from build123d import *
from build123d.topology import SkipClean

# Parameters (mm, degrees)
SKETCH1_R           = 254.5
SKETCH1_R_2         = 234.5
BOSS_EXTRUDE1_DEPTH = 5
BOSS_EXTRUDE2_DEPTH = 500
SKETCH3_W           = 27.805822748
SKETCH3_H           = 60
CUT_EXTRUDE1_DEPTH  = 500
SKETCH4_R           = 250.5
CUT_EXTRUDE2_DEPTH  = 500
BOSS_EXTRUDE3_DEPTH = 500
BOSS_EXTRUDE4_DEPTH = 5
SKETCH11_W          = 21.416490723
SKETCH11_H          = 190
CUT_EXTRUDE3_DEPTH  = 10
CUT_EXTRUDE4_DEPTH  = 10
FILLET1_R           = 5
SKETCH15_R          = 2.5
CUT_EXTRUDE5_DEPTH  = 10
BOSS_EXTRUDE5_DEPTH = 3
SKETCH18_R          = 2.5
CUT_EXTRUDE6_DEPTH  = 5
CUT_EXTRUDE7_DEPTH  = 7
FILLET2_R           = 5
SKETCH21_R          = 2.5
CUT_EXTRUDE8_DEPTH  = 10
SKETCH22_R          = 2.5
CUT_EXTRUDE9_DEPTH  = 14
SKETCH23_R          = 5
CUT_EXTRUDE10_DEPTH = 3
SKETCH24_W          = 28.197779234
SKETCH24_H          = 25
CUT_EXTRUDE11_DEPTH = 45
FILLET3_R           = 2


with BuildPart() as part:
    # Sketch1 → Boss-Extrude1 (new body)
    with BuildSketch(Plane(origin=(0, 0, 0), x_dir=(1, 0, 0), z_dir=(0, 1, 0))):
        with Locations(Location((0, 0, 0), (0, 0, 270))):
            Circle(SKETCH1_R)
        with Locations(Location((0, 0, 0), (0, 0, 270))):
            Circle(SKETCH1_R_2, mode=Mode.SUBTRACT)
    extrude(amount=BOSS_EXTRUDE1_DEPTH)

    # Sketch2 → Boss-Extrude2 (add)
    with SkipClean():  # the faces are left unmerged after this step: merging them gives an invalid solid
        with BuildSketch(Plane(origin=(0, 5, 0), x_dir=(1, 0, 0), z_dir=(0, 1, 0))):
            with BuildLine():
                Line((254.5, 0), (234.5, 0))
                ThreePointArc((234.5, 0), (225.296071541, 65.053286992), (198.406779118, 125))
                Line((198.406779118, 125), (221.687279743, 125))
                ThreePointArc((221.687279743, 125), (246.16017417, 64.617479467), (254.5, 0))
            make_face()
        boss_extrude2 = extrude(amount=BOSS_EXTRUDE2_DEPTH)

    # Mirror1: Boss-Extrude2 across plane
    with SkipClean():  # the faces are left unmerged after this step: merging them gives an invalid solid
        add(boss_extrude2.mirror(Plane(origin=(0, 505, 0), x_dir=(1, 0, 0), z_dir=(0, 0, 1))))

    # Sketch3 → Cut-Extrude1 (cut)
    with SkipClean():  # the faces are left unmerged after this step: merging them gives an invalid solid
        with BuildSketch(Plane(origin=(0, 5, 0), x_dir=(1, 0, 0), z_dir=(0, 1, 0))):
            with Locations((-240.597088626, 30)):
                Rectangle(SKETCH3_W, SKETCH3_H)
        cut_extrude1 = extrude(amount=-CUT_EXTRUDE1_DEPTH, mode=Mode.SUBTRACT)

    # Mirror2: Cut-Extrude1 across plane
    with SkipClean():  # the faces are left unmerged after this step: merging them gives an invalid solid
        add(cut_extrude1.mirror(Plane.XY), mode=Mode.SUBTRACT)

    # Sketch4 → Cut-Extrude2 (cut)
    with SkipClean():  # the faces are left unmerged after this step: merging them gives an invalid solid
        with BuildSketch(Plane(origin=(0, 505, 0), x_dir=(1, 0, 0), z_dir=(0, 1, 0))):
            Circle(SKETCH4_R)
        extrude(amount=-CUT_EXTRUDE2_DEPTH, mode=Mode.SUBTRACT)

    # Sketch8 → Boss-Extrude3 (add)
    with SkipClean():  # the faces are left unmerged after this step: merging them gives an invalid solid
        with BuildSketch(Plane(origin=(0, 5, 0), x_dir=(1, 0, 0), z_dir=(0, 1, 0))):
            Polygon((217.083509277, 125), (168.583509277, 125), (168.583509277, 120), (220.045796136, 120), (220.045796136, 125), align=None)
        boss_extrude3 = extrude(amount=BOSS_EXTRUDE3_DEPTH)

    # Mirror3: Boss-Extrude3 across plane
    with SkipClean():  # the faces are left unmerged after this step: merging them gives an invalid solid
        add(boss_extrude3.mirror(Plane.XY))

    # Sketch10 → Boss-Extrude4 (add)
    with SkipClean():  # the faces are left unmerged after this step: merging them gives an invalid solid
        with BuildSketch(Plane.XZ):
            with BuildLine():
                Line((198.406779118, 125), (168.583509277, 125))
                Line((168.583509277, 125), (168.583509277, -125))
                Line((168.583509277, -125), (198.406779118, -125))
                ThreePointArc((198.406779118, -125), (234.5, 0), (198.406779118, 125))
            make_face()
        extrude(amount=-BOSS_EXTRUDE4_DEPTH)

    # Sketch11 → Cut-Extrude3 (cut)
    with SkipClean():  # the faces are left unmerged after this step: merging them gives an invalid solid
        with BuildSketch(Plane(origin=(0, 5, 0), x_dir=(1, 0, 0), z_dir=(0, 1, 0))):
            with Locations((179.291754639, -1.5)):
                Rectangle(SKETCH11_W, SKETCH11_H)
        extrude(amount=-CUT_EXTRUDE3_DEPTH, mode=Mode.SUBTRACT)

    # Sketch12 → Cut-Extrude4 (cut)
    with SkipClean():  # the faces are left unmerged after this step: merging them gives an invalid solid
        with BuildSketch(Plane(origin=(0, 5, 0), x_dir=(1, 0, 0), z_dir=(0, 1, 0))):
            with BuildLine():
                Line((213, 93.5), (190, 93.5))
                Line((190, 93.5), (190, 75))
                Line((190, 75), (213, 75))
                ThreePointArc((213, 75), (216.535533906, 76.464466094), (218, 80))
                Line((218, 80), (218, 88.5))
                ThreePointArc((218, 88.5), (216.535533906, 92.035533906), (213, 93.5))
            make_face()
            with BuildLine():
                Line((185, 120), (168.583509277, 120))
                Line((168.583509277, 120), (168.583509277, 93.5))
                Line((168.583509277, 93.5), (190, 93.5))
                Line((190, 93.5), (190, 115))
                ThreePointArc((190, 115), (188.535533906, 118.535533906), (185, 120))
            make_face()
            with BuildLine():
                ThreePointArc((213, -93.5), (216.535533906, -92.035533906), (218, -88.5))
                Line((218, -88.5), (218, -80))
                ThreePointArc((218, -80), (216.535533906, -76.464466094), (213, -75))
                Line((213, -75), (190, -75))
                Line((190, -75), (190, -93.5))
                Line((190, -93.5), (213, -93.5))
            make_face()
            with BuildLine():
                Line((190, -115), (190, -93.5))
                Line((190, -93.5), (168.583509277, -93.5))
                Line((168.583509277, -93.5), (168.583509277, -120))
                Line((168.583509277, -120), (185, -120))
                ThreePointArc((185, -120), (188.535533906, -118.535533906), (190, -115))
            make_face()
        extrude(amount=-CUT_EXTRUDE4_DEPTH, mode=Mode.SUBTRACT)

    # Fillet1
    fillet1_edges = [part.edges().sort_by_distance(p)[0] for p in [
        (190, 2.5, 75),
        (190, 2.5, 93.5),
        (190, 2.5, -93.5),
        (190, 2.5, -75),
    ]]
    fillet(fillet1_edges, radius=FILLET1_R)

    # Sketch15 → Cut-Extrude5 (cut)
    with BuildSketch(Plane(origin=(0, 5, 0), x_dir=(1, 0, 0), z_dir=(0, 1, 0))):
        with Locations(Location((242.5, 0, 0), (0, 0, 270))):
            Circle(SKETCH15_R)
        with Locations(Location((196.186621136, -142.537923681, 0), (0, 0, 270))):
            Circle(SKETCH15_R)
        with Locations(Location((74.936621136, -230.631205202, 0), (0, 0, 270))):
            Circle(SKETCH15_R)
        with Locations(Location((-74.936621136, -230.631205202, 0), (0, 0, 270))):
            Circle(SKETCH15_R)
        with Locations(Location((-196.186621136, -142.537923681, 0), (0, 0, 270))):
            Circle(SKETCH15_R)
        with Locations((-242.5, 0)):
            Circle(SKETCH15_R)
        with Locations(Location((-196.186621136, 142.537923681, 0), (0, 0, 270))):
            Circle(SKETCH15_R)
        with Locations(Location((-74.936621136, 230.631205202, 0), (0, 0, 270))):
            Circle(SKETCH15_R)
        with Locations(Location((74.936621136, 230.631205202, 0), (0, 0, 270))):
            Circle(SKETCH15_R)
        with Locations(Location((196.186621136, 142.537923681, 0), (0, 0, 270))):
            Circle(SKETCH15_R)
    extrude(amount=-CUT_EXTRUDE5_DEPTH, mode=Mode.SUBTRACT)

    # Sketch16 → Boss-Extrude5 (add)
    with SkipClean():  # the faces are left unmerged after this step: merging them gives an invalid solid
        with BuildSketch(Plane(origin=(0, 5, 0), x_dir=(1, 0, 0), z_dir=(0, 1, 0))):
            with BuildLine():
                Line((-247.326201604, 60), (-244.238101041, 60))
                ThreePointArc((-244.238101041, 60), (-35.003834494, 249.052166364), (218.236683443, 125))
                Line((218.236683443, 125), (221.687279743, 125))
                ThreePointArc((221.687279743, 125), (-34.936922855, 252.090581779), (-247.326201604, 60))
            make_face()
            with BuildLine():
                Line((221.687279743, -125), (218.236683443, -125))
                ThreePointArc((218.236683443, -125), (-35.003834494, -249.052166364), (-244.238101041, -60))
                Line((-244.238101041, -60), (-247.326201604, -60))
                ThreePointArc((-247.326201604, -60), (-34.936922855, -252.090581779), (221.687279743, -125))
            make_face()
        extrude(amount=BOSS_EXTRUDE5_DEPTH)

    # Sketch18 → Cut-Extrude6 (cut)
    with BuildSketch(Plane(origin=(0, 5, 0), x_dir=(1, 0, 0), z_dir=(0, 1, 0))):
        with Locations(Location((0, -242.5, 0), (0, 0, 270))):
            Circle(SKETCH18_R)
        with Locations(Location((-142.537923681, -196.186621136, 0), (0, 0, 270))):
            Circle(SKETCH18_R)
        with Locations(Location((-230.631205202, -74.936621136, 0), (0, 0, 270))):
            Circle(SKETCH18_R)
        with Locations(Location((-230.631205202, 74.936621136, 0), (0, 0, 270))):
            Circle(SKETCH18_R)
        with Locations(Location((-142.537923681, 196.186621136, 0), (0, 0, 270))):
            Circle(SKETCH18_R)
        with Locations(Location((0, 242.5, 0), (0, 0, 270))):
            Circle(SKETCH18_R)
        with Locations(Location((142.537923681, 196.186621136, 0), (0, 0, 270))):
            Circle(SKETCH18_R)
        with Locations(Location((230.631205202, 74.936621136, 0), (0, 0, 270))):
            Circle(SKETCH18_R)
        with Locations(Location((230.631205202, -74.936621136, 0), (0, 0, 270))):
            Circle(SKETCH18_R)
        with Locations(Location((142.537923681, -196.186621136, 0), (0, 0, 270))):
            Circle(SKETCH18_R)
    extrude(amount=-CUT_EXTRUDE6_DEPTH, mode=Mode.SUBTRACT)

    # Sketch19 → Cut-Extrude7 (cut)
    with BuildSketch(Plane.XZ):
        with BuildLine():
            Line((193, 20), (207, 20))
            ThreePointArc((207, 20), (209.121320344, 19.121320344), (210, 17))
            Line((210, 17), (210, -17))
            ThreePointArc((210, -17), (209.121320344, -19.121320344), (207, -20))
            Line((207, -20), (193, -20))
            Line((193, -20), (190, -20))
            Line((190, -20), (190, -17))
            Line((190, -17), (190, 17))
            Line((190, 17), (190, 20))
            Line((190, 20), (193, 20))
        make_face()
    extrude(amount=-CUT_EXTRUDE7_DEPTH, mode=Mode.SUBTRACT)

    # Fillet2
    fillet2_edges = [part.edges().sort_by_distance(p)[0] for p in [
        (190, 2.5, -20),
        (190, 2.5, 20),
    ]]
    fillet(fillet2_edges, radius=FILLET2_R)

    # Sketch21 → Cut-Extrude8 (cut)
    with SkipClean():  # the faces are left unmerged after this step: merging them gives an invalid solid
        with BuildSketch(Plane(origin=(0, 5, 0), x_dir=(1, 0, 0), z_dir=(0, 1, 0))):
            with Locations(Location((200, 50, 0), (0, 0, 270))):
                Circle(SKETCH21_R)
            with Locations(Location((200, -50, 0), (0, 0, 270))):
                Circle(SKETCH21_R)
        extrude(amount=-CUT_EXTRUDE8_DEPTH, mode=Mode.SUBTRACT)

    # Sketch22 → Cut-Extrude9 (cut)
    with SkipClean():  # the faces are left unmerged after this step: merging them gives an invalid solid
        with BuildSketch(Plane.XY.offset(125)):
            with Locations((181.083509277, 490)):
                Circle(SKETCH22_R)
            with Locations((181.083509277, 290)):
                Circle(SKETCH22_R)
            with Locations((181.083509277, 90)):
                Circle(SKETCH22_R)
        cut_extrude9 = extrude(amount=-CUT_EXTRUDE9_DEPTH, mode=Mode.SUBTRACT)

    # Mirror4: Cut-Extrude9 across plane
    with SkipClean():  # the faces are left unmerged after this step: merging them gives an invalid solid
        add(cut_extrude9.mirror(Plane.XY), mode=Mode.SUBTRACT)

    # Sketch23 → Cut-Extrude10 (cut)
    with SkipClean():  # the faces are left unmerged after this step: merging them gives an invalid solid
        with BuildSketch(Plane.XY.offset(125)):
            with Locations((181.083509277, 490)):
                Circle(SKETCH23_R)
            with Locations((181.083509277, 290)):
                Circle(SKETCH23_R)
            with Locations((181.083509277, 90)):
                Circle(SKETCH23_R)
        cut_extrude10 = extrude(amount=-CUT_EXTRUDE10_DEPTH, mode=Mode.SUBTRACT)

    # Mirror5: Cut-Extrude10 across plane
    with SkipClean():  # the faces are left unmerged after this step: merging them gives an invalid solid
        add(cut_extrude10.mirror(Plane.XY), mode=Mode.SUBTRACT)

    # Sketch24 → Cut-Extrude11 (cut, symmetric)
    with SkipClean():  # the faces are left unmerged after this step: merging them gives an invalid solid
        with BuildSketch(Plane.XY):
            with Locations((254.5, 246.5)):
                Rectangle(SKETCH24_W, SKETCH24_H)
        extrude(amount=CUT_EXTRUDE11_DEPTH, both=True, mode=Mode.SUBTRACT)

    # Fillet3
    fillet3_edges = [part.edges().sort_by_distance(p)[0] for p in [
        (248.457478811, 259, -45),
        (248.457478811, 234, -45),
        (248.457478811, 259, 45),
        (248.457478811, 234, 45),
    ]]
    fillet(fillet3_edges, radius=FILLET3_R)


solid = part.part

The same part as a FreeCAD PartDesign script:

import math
import FreeCAD as App
import Part
import Sketcher
from FreeCAD import Vector
Q = App.Units.Quantity


def edges_at(feature, points):
    """Names of the edges that pass closest to the given points."""
    edges = feature.Shape.Edges
    near = lambda p: min(range(len(edges)), key=lambda i: edges[i].distToShape(Part.Vertex(*p))[0])
    return sorted({f"Edge{near(p) + 1}" for p in points})


def add_polygon(sketch, points):
    """Adds a closed chain of lines whose ends are joined by coincident constraints."""
    first, n = sketch.GeometryCount, len(points)
    for a, b in zip(points, points[1:] + points[:1]):
        sketch.addGeometry(Part.LineSegment(App.Vector(*a, 0), App.Vector(*b, 0)), False)
    for i in range(n):
        sketch.addConstraint(Sketcher.Constraint("Coincident", first + i, 2, first + (i + 1) % n, 1))

doc = App.newDocument("Part")
body = doc.addObject("PartDesign::Body", "Body")

sketch1 = body.newObject("Sketcher::SketchObject", "Sketch")
sketch1.AttachmentSupport = (doc.getObject("XZ_Plane"), [""])
sketch1.MapMode = "FlatFace"
sketch1.addGeometry([
    Part.Circle(Vector(0, 0, 0), Vector(0, 0, 1), 254),
    Part.Circle(Vector(0, 0, 0), Vector(0, 0, 1), 234),
], False)
sketch1.addConstraint([
    Sketcher.Constraint("Coincident", 0, 3, -1, 1),
    Sketcher.Constraint("Coincident", 1, 3, -1, 1),
    Sketcher.Constraint("Diameter", 0, Q("509 mm")),
    Sketcher.Constraint("Diameter", 1, Q("469 mm")),
])
pad1 = body.newObject("PartDesign::Pad", "Pad")
pad1.Profile = sketch1
pad1.Length = 5
pad1.Reversed = True

sketch2 = body.newObject("Sketcher::SketchObject", "Sketch001")
sketch2.AttachmentSupport = (doc.getObject("XZ_Plane"), [""])
sketch2.MapMode = "FlatFace"
sketch2.AttachmentOffset = App.Placement(Vector(0, 0, -5), App.Rotation())
sketch2.addGeometry([
    Part.LineSegment(Vector(234, 0, 0), Vector(254, 0, 0)),
    Part.ArcOfCircle(Part.Circle(Vector(0, 0, 0), Vector(0, 0, 1), 254), math.radians(-29), math.radians(0)),
    Part.LineSegment(Vector(222, -125, 0), Vector(198, -125, 0)),
    Part.ArcOfCircle(Part.Circle(Vector(0, 0, 0), Vector(0, 0, 1), 234), math.radians(-32), math.radians(0)),
], False)
sketch2.addConstraint([
    Sketcher.Constraint("Coincident", 0, 2, 1, 2),
    Sketcher.Constraint("Coincident", 1, 1, 2, 1),
    Sketcher.Constraint("Coincident", 2, 2, 3, 1),
    Sketcher.Constraint("Coincident", 3, 2, 0, 1),
    Sketcher.Constraint("Horizontal", 0),
    Sketcher.Constraint("Horizontal", 2),
    Sketcher.Constraint("Coincident", 1, 3, -1, 1),
    Sketcher.Constraint("Coincident", 3, 3, -1, 1),
    Sketcher.Constraint("PointOnObject", 0, 2, -1),
    Sketcher.Constraint("Radius", 1, Q("254.5 mm")),
    Sketcher.Constraint("Radius", 3, Q("234.5 mm")),
    Sketcher.Constraint("DistanceY", 1, 1, -1, 1, Q("125 mm")),
])
pad2 = body.newObject("PartDesign::Pad", "Pad001")
pad2.Profile = sketch2
pad2.Length = 500
pad2.Reversed = True
doc.recompute()

mirrored = body.newObject("PartDesign::Mirrored", "Mirrored")
mirrored.Originals = [pad2]
mirrored.MirrorPlane = (doc.getObject("XY_Plane"), [""])
body.Tip = mirrored

sketch3 = body.newObject("Sketcher::SketchObject", "Sketch002")
sketch3.AttachmentSupport = (doc.getObject("XZ_Plane"), [""])
sketch3.MapMode = "FlatFace"
sketch3.AttachmentOffset = App.Placement(Vector(0, 0, -5), App.Rotation())
add_polygon(sketch3, [(-254, -60), (-254, 0), (-227, 0), (-227, -60)])
sketch3.addConstraint([
    Sketcher.Constraint("Vertical", 0),
    Sketcher.Constraint("Horizontal", 1),
    Sketcher.Constraint("Vertical", 2),
    Sketcher.Constraint("Horizontal", 3),
    Sketcher.Constraint("PointOnObject", 0, 2, -1),
    Sketcher.Constraint("DistanceY", 0, 1, 0, 2, Q("60 mm")),
    Sketcher.Constraint("DistanceX", 0, 2, -1, 1, Q("254.5 mm")),
    Sketcher.Constraint("DistanceX", 1, 1, 1, 2, Q("27.805823 mm")),
])
pocket1 = body.newObject("PartDesign::Pocket", "Pocket")
pocket1.Profile = sketch3
pocket1.Length = 500
pocket1.Reversed = True
doc.recompute()

mirrored2 = body.newObject("PartDesign::Mirrored", "Mirrored001")
mirrored2.Originals = [pocket1]
mirrored2.MirrorPlane = (doc.getObject("XY_Plane"), [""])
body.Tip = mirrored2

sketch4 = body.newObject("Sketcher::SketchObject", "Sketch003")
sketch4.AttachmentSupport = (doc.getObject("XZ_Plane"), [""])
sketch4.MapMode = "FlatFace"
sketch4.AttachmentOffset = App.Placement(Vector(0, 0, -505), App.Rotation())
sketch4.addGeometry(Part.Circle(Vector(0, 0, 0), Vector(0, 0, 1), 250), False)
sketch4.addConstraint([
    Sketcher.Constraint("Coincident", 0, 3, -1, 1),
    Sketcher.Constraint("Diameter", 0, Q("501 mm")),
])
pocket2 = body.newObject("PartDesign::Pocket", "Pocket001")
pocket2.Profile = sketch4
pocket2.Length = 500
pocket2.Reversed = True

sketch5 = body.newObject("Sketcher::SketchObject", "Sketch004")
sketch5.AttachmentSupport = (doc.getObject("XZ_Plane"), [""])
sketch5.MapMode = "FlatFace"
sketch5.AttachmentOffset = App.Placement(Vector(0, 0, -5), App.Rotation())
add_polygon(sketch5, [(169, -125), (169, -120), (220, -120), (220, -125)])
sketch5.addConstraint([
    Sketcher.Constraint("Vertical", 0),
    Sketcher.Constraint("Horizontal", 1),
    Sketcher.Constraint("Vertical", 2),
    Sketcher.Constraint("Horizontal", 3),
    Sketcher.Constraint("DistanceY", 0, 1, 0, 2, Q("5 mm")),
    Sketcher.Constraint("DistanceY", 0, 2, -1, 1, Q("120 mm")),
    Sketcher.Constraint("DistanceX", 1, 1, 1, 2, Q("51.462287 mm")),
    Sketcher.Constraint("DistanceX", -1, 1, 0, 2, Q("168.583509 mm")),
])
pad3 = body.newObject("PartDesign::Pad", "Pad002")
pad3.Profile = sketch5
pad3.Length = 500
pad3.Reversed = True
doc.recompute()

mirrored3 = body.newObject("PartDesign::Mirrored", "Mirrored002")
mirrored3.Originals = [pad3]
mirrored3.MirrorPlane = (doc.getObject("XY_Plane"), [""])
body.Tip = mirrored3

sketch6 = body.newObject("Sketcher::SketchObject", "Sketch005")
sketch6.AttachmentSupport = (doc.getObject("XZ_Plane"), [""])
sketch6.MapMode = "FlatFace"
sketch6.addGeometry([
    Part.LineSegment(Vector(198, 125, 0), Vector(169, 125, 0)),
    Part.LineSegment(Vector(169, 125, 0), Vector(169, -125, 0)),
    Part.LineSegment(Vector(169, -125, 0), Vector(198, -125, 0)),
    Part.ArcOfCircle(Part.Circle(Vector(0, 0, 0), Vector(0, 0, 1), 234), math.radians(-32), math.radians(32)),
], False)
sketch6.addConstraint([
    Sketcher.Constraint("Coincident", 0, 2, 1, 1),
    Sketcher.Constraint("Coincident", 1, 2, 2, 1),
    Sketcher.Constraint("Coincident", 2, 2, 3, 1),
    Sketcher.Constraint("Coincident", 3, 2, 0, 1),
    Sketcher.Constraint("Horizontal", 0),
    Sketcher.Constraint("Vertical", 1),
    Sketcher.Constraint("Horizontal", 2),
    Sketcher.Constraint("Coincident", 3, 3, -1, 1),
    Sketcher.Constraint("Vertical", 2, 2, 3, 2),
    Sketcher.Constraint("Radius", 3, Q("234.5 mm")),
    Sketcher.Constraint("DistanceY", 1, 2, 1, 1, Q("250 mm")),
    Sketcher.Constraint("DistanceX", 0, 2, 0, 1, Q("29.82327 mm")),
])
pad4 = body.newObject("PartDesign::Pad", "Pad003")
pad4.Profile = sketch6
pad4.Length = 5
pad4.Reversed = True

sketch7 = body.newObject("Sketcher::SketchObject", "Sketch006")
sketch7.AttachmentSupport = (doc.getObject("XZ_Plane"), [""])
sketch7.MapMode = "FlatFace"
sketch7.AttachmentOffset = App.Placement(Vector(0, 0, -5), App.Rotation())
add_polygon(sketch7, [(169, -94), (169, 96), (190, 96), (190, -94)])
sketch7.addConstraint([
    Sketcher.Constraint("Vertical", 0),
    Sketcher.Constraint("Horizontal", 1),
    Sketcher.Constraint("Vertical", 2),
    Sketcher.Constraint("Horizontal", 3),
    Sketcher.Constraint("DistanceY", 0, 1, 0, 2, Q("190 mm")),
    Sketcher.Constraint("DistanceX", -1, 1, 1, 2, Q("190 mm")),
    Sketcher.Constraint("DistanceY", -1, 1, 0, 2, Q("96.5 mm")),
    Sketcher.Constraint("DistanceX", 1, 1, 1, 2, Q("21.416491 mm")),
])
pocket3 = body.newObject("PartDesign::Pocket", "Pocket002")
pocket3.Profile = sketch7
pocket3.Length = 10
pocket3.Reversed = True

sketch8 = body.newObject("Sketcher::SketchObject", "Sketch007")
sketch8.AttachmentSupport = (doc.getObject("XZ_Plane"), [""])
sketch8.MapMode = "FlatFace"
sketch8.AttachmentOffset = App.Placement(Vector(0, 0, -5), App.Rotation())
sketch8.addGeometry([
    Part.LineSegment(Vector(213, -94, 0), Vector(190, -94, 0)),
    Part.LineSegment(Vector(190, -94, 0), Vector(190, -75, 0)),
    Part.LineSegment(Vector(190, -75, 0), Vector(213, -75, 0)),
    Part.ArcOfCircle(Part.Circle(Vector(213, -80, 0), Vector(0, 0, 1), 5), math.radians(0), math.radians(90)),
    Part.LineSegment(Vector(218, -80, 0), Vector(218, -88, 0)),
    Part.ArcOfCircle(Part.Circle(Vector(213, -88, 0), Vector(0, 0, 1), 5), math.radians(-90), math.radians(0)),
    Part.LineSegment(Vector(185, -120, 0), Vector(169, -120, 0)),
    Part.LineSegment(Vector(169, -120, 0), Vector(169, -94, 0)),
    Part.LineSegment(Vector(169, -94, 0), Vector(190, -94, 0)),
    Part.LineSegment(Vector(190, -94, 0), Vector(190, -115, 0)),
    Part.ArcOfCircle(Part.Circle(Vector(185, -115, 0), Vector(0, 0, 1), 5), math.radians(-90), math.radians(0)),
    Part.ArcOfCircle(Part.Circle(Vector(213, 88, 0), Vector(0, 0, 1), 5), math.radians(0), math.radians(90)),
    Part.LineSegment(Vector(218, 88, 0), Vector(218, 80, 0)),
    Part.ArcOfCircle(Part.Circle(Vector(213, 80, 0), Vector(0, 0, 1), 5), math.radians(-90), math.radians(0)),
    Part.LineSegment(Vector(213, 75, 0), Vector(190, 75, 0)),
    Part.LineSegment(Vector(190, 75, 0), Vector(190, 94, 0)),
    Part.LineSegment(Vector(190, 94, 0), Vector(213, 94, 0)),
    Part.LineSegment(Vector(190, 115, 0), Vector(190, 94, 0)),
    Part.LineSegment(Vector(190, 94, 0), Vector(169, 94, 0)),
    Part.LineSegment(Vector(169, 94, 0), Vector(169, 120, 0)),
    Part.LineSegment(Vector(169, 120, 0), Vector(185, 120, 0)),
    Part.ArcOfCircle(Part.Circle(Vector(185, 115, 0), Vector(0, 0, 1), 5), math.radians(0), math.radians(90)),
], False)
sketch8.addConstraint([
    Sketcher.Constraint("Coincident", 0, 2, 1, 1),
    Sketcher.Constraint("Coincident", 1, 2, 2, 1),
    Sketcher.Constraint("Tangent", 2, 2, 3, 2),
    Sketcher.Constraint("Tangent", 3, 1, 4, 1),
    Sketcher.Constraint("Tangent", 4, 2, 5, 2),
    Sketcher.Constraint("Tangent", 5, 1, 0, 1),
    Sketcher.Constraint("Coincident", 6, 2, 7, 1),
    Sketcher.Constraint("Coincident", 7, 2, 8, 1),
    Sketcher.Constraint("Coincident", 8, 2, 9, 1),
    Sketcher.Constraint("Tangent", 9, 2, 10, 2),
    Sketcher.Constraint("Tangent", 10, 1, 6, 1),
    Sketcher.Constraint("Tangent", 11, 1, 12, 1),
    Sketcher.Constraint("Tangent", 12, 2, 13, 2),
    Sketcher.Constraint("Tangent", 13, 1, 14, 1),
    Sketcher.Constraint("Coincident", 14, 2, 15, 1),
    Sketcher.Constraint("Coincident", 15, 2, 16, 1),
    Sketcher.Constraint("Tangent", 16, 2, 11, 2),
    Sketcher.Constraint("Coincident", 17, 2, 18, 1),
    Sketcher.Constraint("Coincident", 18, 2, 19, 1),
    Sketcher.Constraint("Coincident", 19, 2, 20, 1),
    Sketcher.Constraint("Tangent", 20, 2, 21, 2),
    Sketcher.Constraint("Tangent", 21, 1, 17, 1),
    Sketcher.Constraint("Horizontal", 0),
    Sketcher.Constraint("Vertical", 1),
    Sketcher.Constraint("Horizontal", 2),
    Sketcher.Constraint("Vertical", 4),
    Sketcher.Constraint("Horizontal", 6),
    Sketcher.Constraint("Vertical", 7),
    Sketcher.Constraint("Horizontal", 8),
    Sketcher.Constraint("Vertical", 9),
    Sketcher.Constraint("Vertical", 12),
    Sketcher.Constraint("Horizontal", 14),
    Sketcher.Constraint("Vertical", 15),
    Sketcher.Constraint("Horizontal", 16),
    Sketcher.Constraint("Vertical", 17),
    Sketcher.Constraint("Horizontal", 18),
    Sketcher.Constraint("Vertical", 19),
    Sketcher.Constraint("Horizontal", 20),
    Sketcher.Constraint("Coincident", 8, 2, 0, 2),
    Sketcher.Constraint("Coincident", 17, 2, 15, 2),
    Sketcher.Constraint("Equal", 3, 5),
    Sketcher.Constraint("Equal", 5, 10),
    Sketcher.Constraint("Equal", 10, 11),
    Sketcher.Constraint("Equal", 11, 13),
    Sketcher.Constraint("Equal", 13, 21),
    Sketcher.Constraint("Symmetric", 5, 3, 11, 3, -1),
    Sketcher.Constraint("Symmetric", 10, 3, 21, 3, -1),
    Sketcher.Constraint("Vertical", 7, 2, 18, 2),
    Sketcher.Constraint("Equal", 4, 12),
    Sketcher.Constraint("Radius", 3, Q("5 mm")),
    Sketcher.Constraint("DistanceX", 0, 2, 0, 1, Q("23 mm")),
    Sketcher.Constraint("DistanceY", 1, 1, 1, 2, Q("18.5 mm")),
    Sketcher.Constraint("DistanceY", 7, 1, 7, 2, Q("26.5 mm")),
    Sketcher.Constraint("DistanceX", -1, 1, 3, 3, Q("213 mm")),
    Sketcher.Constraint("DistanceY", 3, 3, -1, 1, Q("80 mm")),
    Sketcher.Constraint("DistanceX", 6, 2, 6, 1, Q("16.416491 mm")),
])
pocket4 = body.newObject("PartDesign::Pocket", "Pocket003")
pocket4.Profile = sketch8
pocket4.Length = 10
pocket4.Reversed = True
doc.recompute()

fillet = body.newObject("PartDesign::Fillet", "Fillet")
fillet.Base = (pocket4, edges_at(pocket4, [
    (190, 2.5, 75),
    (190, 2.5, 93.5),
    (190, 2.5, -93.5),
    (190, 2.5, -75),
]))
fillet.Radius = 5

sketch9 = body.newObject("Sketcher::SketchObject", "Sketch008")
sketch9.AttachmentSupport = (doc.getObject("XZ_Plane"), [""])
sketch9.MapMode = "FlatFace"
sketch9.AttachmentOffset = App.Placement(Vector(0, 0, -5), App.Rotation())
sketch9.addGeometry([
    Part.Circle(Vector(242.5, 0, 0), Vector(0, 0, 1), 2.5),
    Part.Circle(Vector(196.2, 142.5, 0), Vector(0, 0, 1), 2.5),
    Part.Circle(Vector(74.9, 230.6, 0), Vector(0, 0, 1), 2.5),
    Part.Circle(Vector(-74.9, 230.6, 0), Vector(0, 0, 1), 2.5),
    Part.Circle(Vector(-196.2, 142.5, 0), Vector(0, 0, 1), 2.5),
    Part.Circle(Vector(-242.5, 0, 0), Vector(0, 0, 1), 2.5),
    Part.Circle(Vector(-196.2, -142.5, 0), Vector(0, 0, 1), 2.5),
    Part.Circle(Vector(-74.9, -230.6, 0), Vector(0, 0, 1), 2.5),
    Part.Circle(Vector(74.9, -230.6, 0), Vector(0, 0, 1), 2.5),
    Part.Circle(Vector(196.2, -142.5, 0), Vector(0, 0, 1), 2.5),
], False)
sketch9.addConstraint([
    Sketcher.Constraint("Equal", 0, 1),
    Sketcher.Constraint("Equal", 1, 2),
    Sketcher.Constraint("Equal", 2, 3),
    Sketcher.Constraint("Equal", 3, 4),
    Sketcher.Constraint("Equal", 4, 5),
    Sketcher.Constraint("Equal", 5, 6),
    Sketcher.Constraint("Equal", 6, 7),
    Sketcher.Constraint("Equal", 7, 8),
    Sketcher.Constraint("Equal", 8, 9),
    Sketcher.Constraint("Symmetric", 0, 3, 5, 3, -1, 1),
    Sketcher.Constraint("Symmetric", 1, 3, 6, 3, -1, 1),
    Sketcher.Constraint("Symmetric", 2, 3, 7, 3, -1, 1),
    Sketcher.Constraint("Symmetric", 3, 3, 8, 3, -1, 1),
    Sketcher.Constraint("Symmetric", 4, 3, 9, 3, -1, 1),
    Sketcher.Constraint("Symmetric", 2, 3, 3, 3, -2),
    Sketcher.Constraint("Symmetric", 1, 3, 4, 3, -2),
    Sketcher.Constraint("PointOnObject", 0, 3, -1),
    Sketcher.Constraint("Diameter", 0, Q("5 mm")),
    Sketcher.Constraint("DistanceX", 5, 3, 0, 3, Q("485 mm")),
    Sketcher.Constraint("DistanceX", 2, 3, 1, 3, Q("121.25 mm")),
    Sketcher.Constraint("DistanceX", -1, 1, 1, 3, Q("196.186621 mm")),
    Sketcher.Constraint("DistanceY", 1, 3, 2, 3, Q("88.093282 mm")),
    Sketcher.Constraint("DistanceY", 6, 3, 3, 3, Q("373.169129 mm")),
])
pocket5 = body.newObject("PartDesign::Pocket", "Pocket004")
pocket5.Profile = sketch9
pocket5.Length = 10
pocket5.Reversed = True

sketch10 = body.newObject("Sketcher::SketchObject", "Sketch009")
sketch10.AttachmentSupport = (doc.getObject("XZ_Plane"), [""])
sketch10.MapMode = "FlatFace"
sketch10.AttachmentOffset = App.Placement(Vector(0, 0, -5), App.Rotation())
sketch10.addGeometry([
    Part.LineSegment(Vector(-247.3, -60, 0), Vector(-244.2, -60, 0)),
    Part.ArcOfCircle(Part.Circle(Vector(0, 0, 0), Vector(0, 0, 1), 251.5), math.radians(-166), math.radians(-30)),
    Part.LineSegment(Vector(218.2, -125, 0), Vector(221.7, -125, 0)),
    Part.ArcOfCircle(Part.Circle(Vector(0, 0, 0), Vector(0, 0, 1), 254.5), math.radians(-166), math.radians(-29)),
    Part.LineSegment(Vector(221.7, 125, 0), Vector(218.2, 125, 0)),
    Part.ArcOfCircle(Part.Circle(Vector(0, 0, 0), Vector(0, 0, 1), 251.5), math.radians(30), math.radians(166)),
    Part.LineSegment(Vector(-244.2, 60, 0), Vector(-247.3, 60, 0)),
    Part.ArcOfCircle(Part.Circle(Vector(0, 0, 0), Vector(0, 0, 1), 254.5), math.radians(29), math.radians(166)),
], False)
sketch10.addConstraint([
    Sketcher.Constraint("Coincident", 0, 2, 1, 1),
    Sketcher.Constraint("Coincident", 1, 2, 2, 1),
    Sketcher.Constraint("Coincident", 2, 2, 3, 2),
    Sketcher.Constraint("Coincident", 3, 1, 0, 1),
    Sketcher.Constraint("Coincident", 4, 2, 5, 1),
    Sketcher.Constraint("Coincident", 5, 2, 6, 1),
    Sketcher.Constraint("Coincident", 6, 2, 7, 2),
    Sketcher.Constraint("Coincident", 7, 1, 4, 1),
    Sketcher.Constraint("Horizontal", 0),
    Sketcher.Constraint("Horizontal", 2),
    Sketcher.Constraint("Horizontal", 4),
    Sketcher.Constraint("Horizontal", 6),
    Sketcher.Constraint("Coincident", 1, 3, -1, 1),
    Sketcher.Constraint("Coincident", 3, 3, -1, 1),
    Sketcher.Constraint("Coincident", 5, 3, -1, 1),
    Sketcher.Constraint("Coincident", 7, 3, -1, 1),
    Sketcher.Constraint("Equal", 1, 5),
    Sketcher.Constraint("Equal", 3, 7),
    Sketcher.Constraint("Vertical", 1, 2, 4, 2),
    Sketcher.Constraint("Vertical", 0, 2, 5, 2),
    Sketcher.Constraint("Radius", 1, Q("251.5 mm")),
    Sketcher.Constraint("Radius", 3, Q("254.5 mm")),
    Sketcher.Constraint("DistanceY", 0, 2, -1, 1, Q("60 mm")),
    Sketcher.Constraint("DistanceY", 2, 2, -1, 1, Q("125 mm")),
])
pad5 = body.newObject("PartDesign::Pad", "Pad004")
pad5.Profile = sketch10
pad5.Length = 3
pad5.Reversed = True

sketch11 = body.newObject("Sketcher::SketchObject", "Sketch010")
sketch11.AttachmentSupport = (doc.getObject("XZ_Plane"), [""])
sketch11.MapMode = "FlatFace"
sketch11.AttachmentOffset = App.Placement(Vector(0, 0, -5), App.Rotation())
sketch11.addGeometry([
    Part.Circle(Vector(0, 242.5, 0), Vector(0, 0, 1), 2.5),
    Part.Circle(Vector(-142.5, 196.2, 0), Vector(0, 0, 1), 2.5),
    Part.Circle(Vector(-230.6, 74.9, 0), Vector(0, 0, 1), 2.5),
    Part.Circle(Vector(-230.6, -74.9, 0), Vector(0, 0, 1), 2.5),
    Part.Circle(Vector(-142.5, -196.2, 0), Vector(0, 0, 1), 2.5),
    Part.Circle(Vector(0, -242.5, 0), Vector(0, 0, 1), 2.5),
    Part.Circle(Vector(142.5, -196.2, 0), Vector(0, 0, 1), 2.5),
    Part.Circle(Vector(230.6, -74.9, 0), Vector(0, 0, 1), 2.5),
    Part.Circle(Vector(230.6, 74.9, 0), Vector(0, 0, 1), 2.5),
    Part.Circle(Vector(142.5, 196.2, 0), Vector(0, 0, 1), 2.5),
], False)
sketch11.addConstraint([
    Sketcher.Constraint("Equal", 0, 1),
    Sketcher.Constraint("Equal", 1, 2),
    Sketcher.Constraint("Equal", 2, 3),
    Sketcher.Constraint("Equal", 3, 4),
    Sketcher.Constraint("Equal", 4, 5),
    Sketcher.Constraint("Equal", 5, 6),
    Sketcher.Constraint("Equal", 6, 7),
    Sketcher.Constraint("Equal", 7, 8),
    Sketcher.Constraint("Equal", 8, 9),
    Sketcher.Constraint("Symmetric", 0, 3, 5, 3, -1, 1),
    Sketcher.Constraint("Symmetric", 1, 3, 6, 3, -1, 1),
    Sketcher.Constraint("Symmetric", 2, 3, 7, 3, -1, 1),
    Sketcher.Constraint("Symmetric", 3, 3, 8, 3, -1, 1),
    Sketcher.Constraint("Symmetric", 4, 3, 9, 3, -1, 1),
    Sketcher.Constraint("Symmetric", 4, 3, 6, 3, -2),
    Sketcher.Constraint("Symmetric", 3, 3, 7, 3, -2),
    Sketcher.Constraint("PointOnObject", 0, 3, -2),
    Sketcher.Constraint("Diameter", 0, Q("5 mm")),
    Sketcher.Constraint("DistanceY", 5, 3, 0, 3, Q("485 mm")),
    Sketcher.Constraint("DistanceY", 2, 3, 1, 3, Q("121.25 mm")),
    Sketcher.Constraint("DistanceY", -1, 1, 1, 3, Q("196.186621 mm")),
    Sketcher.Constraint("DistanceX", 2, 3, 1, 3, Q("88.093282 mm")),
    Sketcher.Constraint("DistanceX", 3, 3, 6, 3, Q("373.169129 mm")),
])
pocket6 = body.newObject("PartDesign::Pocket", "Pocket005")
pocket6.Profile = sketch11
pocket6.Length = 5
pocket6.Reversed = True

sketch12 = body.newObject("Sketcher::SketchObject", "Sketch011")
sketch12.AttachmentSupport = (doc.getObject("XZ_Plane"), [""])
sketch12.MapMode = "FlatFace"
sketch12.addGeometry([
    Part.ArcOfCircle(Part.Circle(Vector(207, 17, 0), Vector(0, 0, 1), 3), math.radians(0), math.radians(90)),
    Part.LineSegment(Vector(207, 20, 0), Vector(190, 20, 0)),
    Part.LineSegment(Vector(190, 20, 0), Vector(190, -20, 0)),
    Part.LineSegment(Vector(190, -20, 0), Vector(207, -20, 0)),
    Part.ArcOfCircle(Part.Circle(Vector(207, -17, 0), Vector(0, 0, 1), 3), math.radians(-90), math.radians(0)),
    Part.LineSegment(Vector(210, -17, 0), Vector(210, 17, 0)),
], False)
sketch12.addConstraint([
    Sketcher.Constraint("Tangent", 0, 2, 1, 1),
    Sketcher.Constraint("Coincident", 1, 2, 2, 1),
    Sketcher.Constraint("Coincident", 2, 2, 3, 1),
    Sketcher.Constraint("Tangent", 3, 2, 4, 1),
    Sketcher.Constraint("Tangent", 4, 2, 5, 1),
    Sketcher.Constraint("Tangent", 5, 2, 0, 1),
    Sketcher.Constraint("Horizontal", 1),
    Sketcher.Constraint("Vertical", 2),
    Sketcher.Constraint("Horizontal", 3),
    Sketcher.Constraint("Vertical", 5),
    Sketcher.Constraint("Equal", 0, 4),
    Sketcher.Constraint("Radius", 0, Q("3 mm")),
    Sketcher.Constraint("DistanceX", 1, 2, 1, 1, Q("17 mm")),
    Sketcher.Constraint("DistanceY", 2, 2, 2, 1, Q("40 mm")),
    Sketcher.Constraint("DistanceX", -1, 1, 0, 3, Q("207 mm")),
    Sketcher.Constraint("DistanceY", -1, 1, 0, 3, Q("17 mm")),
])
pocket7 = body.newObject("PartDesign::Pocket", "Pocket006")
pocket7.Profile = sketch12
pocket7.Length = 7
doc.recompute()

fillet2 = body.newObject("PartDesign::Fillet", "Fillet001")
fillet2.Base = (pocket7, edges_at(pocket7, [(190, 2.5, -20), (190, 2.5, 20)]))
fillet2.Radius = 5

sketch13 = body.newObject("Sketcher::SketchObject", "Sketch012")
sketch13.AttachmentSupport = (doc.getObject("XZ_Plane"), [""])
sketch13.MapMode = "FlatFace"
sketch13.AttachmentOffset = App.Placement(Vector(0, 0, -5), App.Rotation())
sketch13.addGeometry([
    Part.Circle(Vector(200, -50, 0), Vector(0, 0, 1), 2.5),
    Part.Circle(Vector(200, 50, 0), Vector(0, 0, 1), 2.5),
], False)
sketch13.addConstraint([
    Sketcher.Constraint("Equal", 0, 1),
    Sketcher.Constraint("Symmetric", 0, 3, 1, 3, -1),
    Sketcher.Constraint("Diameter", 0, Q("5 mm")),
    Sketcher.Constraint("DistanceX", -1, 1, 0, 3, Q("200 mm")),
    Sketcher.Constraint("DistanceY", 0, 3, -1, 1, Q("50 mm")),
])
pocket8 = body.newObject("PartDesign::Pocket", "Pocket007")
pocket8.Profile = sketch13
pocket8.Length = 10
pocket8.Reversed = True

sketch14 = body.newObject("Sketcher::SketchObject", "Sketch013")
sketch14.AttachmentSupport = (doc.getObject("XY_Plane"), [""])
sketch14.MapMode = "FlatFace"
sketch14.AttachmentOffset = App.Placement(Vector(0, 0, 125), App.Rotation())
sketch14.addGeometry([
    Part.Circle(Vector(181.1, 490, 0), Vector(0, 0, 1), 2.5),
    Part.Circle(Vector(181.1, 290, 0), Vector(0, 0, 1), 2.5),
    Part.Circle(Vector(181.1, 90, 0), Vector(0, 0, 1), 2.5),
], False)
sketch14.addConstraint([
    Sketcher.Constraint("Equal", 0, 1),
    Sketcher.Constraint("Equal", 1, 2),
    Sketcher.Constraint("Vertical", 0, 3, 1, 3),
    Sketcher.Constraint("Vertical", 1, 3, 2, 3),
    Sketcher.Constraint("Diameter", 0, Q("5 mm")),
    Sketcher.Constraint("DistanceY", -1, 1, 0, 3, Q("490 mm")),
    Sketcher.Constraint("DistanceY", -1, 1, 1, 3, Q("290 mm")),
    Sketcher.Constraint("DistanceY", -1, 1, 2, 3, Q("90 mm")),
    Sketcher.Constraint("DistanceX", -1, 1, 0, 3, Q("181.083509 mm")),
])
pocket9 = body.newObject("PartDesign::Pocket", "Pocket008")
pocket9.Profile = sketch14
pocket9.Length = 14
doc.recompute()

mirrored4 = body.newObject("PartDesign::Mirrored", "Mirrored003")
mirrored4.Originals = [pocket9]
mirrored4.MirrorPlane = (doc.getObject("XY_Plane"), [""])
body.Tip = mirrored4

sketch15 = body.newObject("Sketcher::SketchObject", "Sketch014")
sketch15.AttachmentSupport = (doc.getObject("XY_Plane"), [""])
sketch15.MapMode = "FlatFace"
sketch15.AttachmentOffset = App.Placement(Vector(0, 0, 125), App.Rotation())
sketch15.addGeometry([
    Part.Circle(Vector(181, 490, 0), Vector(0, 0, 1), 5),
    Part.Circle(Vector(181, 290, 0), Vector(0, 0, 1), 5),
    Part.Circle(Vector(181, 90, 0), Vector(0, 0, 1), 5),
], False)
sketch15.addConstraint([
    Sketcher.Constraint("Equal", 0, 1),
    Sketcher.Constraint("Equal", 1, 2),
    Sketcher.Constraint("Vertical", 0, 3, 1, 3),
    Sketcher.Constraint("Vertical", 1, 3, 2, 3),
    Sketcher.Constraint("Diameter", 0, Q("10 mm")),
    Sketcher.Constraint("DistanceY", -1, 1, 0, 3, Q("490 mm")),
    Sketcher.Constraint("DistanceY", -1, 1, 1, 3, Q("290 mm")),
    Sketcher.Constraint("DistanceY", -1, 1, 2, 3, Q("90 mm")),
    Sketcher.Constraint("DistanceX", -1, 1, 0, 3, Q("181.083509 mm")),
])
pocket10 = body.newObject("PartDesign::Pocket", "Pocket009")
pocket10.Profile = sketch15
pocket10.Length = 3
doc.recompute()

mirrored5 = body.newObject("PartDesign::Mirrored", "Mirrored004")
mirrored5.Originals = [pocket10]
mirrored5.MirrorPlane = (doc.getObject("XY_Plane"), [""])
body.Tip = mirrored5

sketch16 = body.newObject("Sketcher::SketchObject", "Sketch015")
sketch16.AttachmentSupport = (doc.getObject("XY_Plane"), [""])
sketch16.MapMode = "FlatFace"
add_polygon(sketch16, [(240, 259), (240, 234), (269, 234), (269, 259)])
sketch16.addConstraint([
    Sketcher.Constraint("Vertical", 0),
    Sketcher.Constraint("Horizontal", 1),
    Sketcher.Constraint("Vertical", 2),
    Sketcher.Constraint("Horizontal", 3),
    Sketcher.Constraint("DistanceY", 0, 2, 0, 1, Q("25 mm")),
    Sketcher.Constraint("DistanceY", -1, 1, 0, 2, Q("234 mm")),
    Sketcher.Constraint("DistanceX", 1, 1, 1, 2, Q("28.197779 mm")),
    Sketcher.Constraint("DistanceX", -1, 1, 0, 2, Q("240.40111 mm")),
])
pocket11 = body.newObject("PartDesign::Pocket", "Pocket010")
pocket11.Profile = sketch16
pocket11.Length = 90
pocket11.Midplane = True
doc.recompute()

fillet3 = body.newObject("PartDesign::Fillet", "Fillet002")
fillet3.Base = (pocket11, edges_at(pocket11, [
    (248.457, 259, -45),
    (248.457, 234, -45),
    (248.457, 259, 45),
    (248.457, 234, 45),
]))
fillet3.Radius = 2

doc.recompute()
